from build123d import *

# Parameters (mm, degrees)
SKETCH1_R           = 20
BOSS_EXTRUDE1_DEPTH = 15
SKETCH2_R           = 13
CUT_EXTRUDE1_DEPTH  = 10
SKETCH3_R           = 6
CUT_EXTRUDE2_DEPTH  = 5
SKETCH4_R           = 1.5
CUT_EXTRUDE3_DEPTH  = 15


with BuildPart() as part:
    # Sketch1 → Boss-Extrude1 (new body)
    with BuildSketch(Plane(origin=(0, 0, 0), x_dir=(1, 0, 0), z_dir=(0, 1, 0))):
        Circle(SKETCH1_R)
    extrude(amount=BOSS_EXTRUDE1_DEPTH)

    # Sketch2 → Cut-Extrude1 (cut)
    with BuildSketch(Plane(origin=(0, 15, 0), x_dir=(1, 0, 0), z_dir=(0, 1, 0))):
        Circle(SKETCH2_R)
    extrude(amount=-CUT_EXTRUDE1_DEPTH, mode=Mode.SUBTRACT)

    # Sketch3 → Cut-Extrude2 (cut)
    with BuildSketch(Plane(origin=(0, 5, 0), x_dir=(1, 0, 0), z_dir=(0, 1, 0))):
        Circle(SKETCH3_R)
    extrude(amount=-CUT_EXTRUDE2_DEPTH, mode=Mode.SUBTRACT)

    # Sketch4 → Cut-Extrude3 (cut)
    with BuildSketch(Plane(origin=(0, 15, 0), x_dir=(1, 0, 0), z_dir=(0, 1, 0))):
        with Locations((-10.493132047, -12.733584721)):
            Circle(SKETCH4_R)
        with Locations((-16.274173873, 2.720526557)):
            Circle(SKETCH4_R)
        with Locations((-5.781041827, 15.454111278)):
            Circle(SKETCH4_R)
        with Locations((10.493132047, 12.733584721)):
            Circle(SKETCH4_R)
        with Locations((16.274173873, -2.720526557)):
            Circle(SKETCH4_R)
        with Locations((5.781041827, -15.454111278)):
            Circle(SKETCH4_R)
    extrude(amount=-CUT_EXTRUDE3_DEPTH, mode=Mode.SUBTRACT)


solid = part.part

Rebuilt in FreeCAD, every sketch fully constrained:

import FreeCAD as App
import Part
import Sketcher

V = App.Vector

doc = App.newDocument("Part")
body = doc.addObject("PartDesign::Body", "Body")

# Sketch on XZ plane
sketch1 = body.newObject("Sketcher::SketchObject", "Sketch")
sketch1.AttachmentSupport = (doc.getObject("XZ_Plane"), [""])
sketch1.MapMode = "FlatFace"
sketch1.addGeometry(Part.Circle(V(0, 0, 0), V(0, 0, 1), 20), False)
sketch1.addConstraint([
    Sketcher.Constraint("Coincident", 0, 3, -1, 1),
    Sketcher.Constraint("Diameter", 0, 40.0),
])
pad1 = body.newObject("PartDesign::Pad", "Pad")
pad1.Profile = sketch1
pad1.Length = 15
pad1.Reversed = True

# Sketch on XZ plane
sketch2 = body.newObject("Sketcher::SketchObject", "Sketch001")
sketch2.AttachmentSupport = (doc.getObject("XZ_Plane"), [""])
sketch2.MapMode = "FlatFace"
sketch2.AttachmentOffset = App.Placement(V(0, 0, -15), App.Rotation())
sketch2.addGeometry(Part.Circle(V(0, 0, 0), V(0, 0, 1), 13), False)
sketch2.addConstraint([
    Sketcher.Constraint("Coincident", 0, 3, -1, 1),
    Sketcher.Constraint("Diameter", 0, 26.0),
])
pocket1 = body.newObject("PartDesign::Pocket", "Pocket")
pocket1.Profile = sketch2
pocket1.Length = 10
pocket1.Reversed = True

# Sketch on XZ plane
sketch3 = body.newObject("Sketcher::SketchObject", "Sketch002")
sketch3.AttachmentSupport = (doc.getObject("XZ_Plane"), [""])
sketch3.MapMode = "FlatFace"
sketch3.AttachmentOffset = App.Placement(V(0, 0, -5), App.Rotation())
sketch3.addGeometry(Part.Circle(V(0, 0, 0), V(0, 0, 1), 6), False)
sketch3.addConstraint([
    Sketcher.Constraint("Coincident", 0, 3, -1, 1),
    Sketcher.Constraint("Diameter", 0, 12.0),
])
pocket2 = body.newObject("PartDesign::Pocket", "Pocket001")
pocket2.Profile = sketch3
pocket2.Length = 5
pocket2.Reversed = True

# Sketch on XZ plane
sketch4 = body.newObject("Sketcher::SketchObject", "Sketch003")
sketch4.AttachmentSupport = (doc.getObject("XZ_Plane"), [""])
sketch4.MapMode = "FlatFace"
sketch4.AttachmentOffset = App.Placement(V(0, 0, -15), App.Rotation())
sketch4.addGeometry([
    Part.Circle(V(-10.5, 12.7, 0), V(0, 0, 1), 1.5),  # 0
    Part.Circle(V(-16.3, -2.7, 0), V(0, 0, 1), 1.5),  # 1
    Part.Circle(V(-5.8, -15.5, 0), V(0, 0, 1), 1.5),  # 2
    Part.Circle(V(10.5, -12.7, 0), V(0, 0, 1), 1.5),  # 3
    Part.Circle(V(16.3, 2.7, 0), V(0, 0, 1), 1.5),  # 4
    Part.Circle(V(5.8, 15.5, 0), V(0, 0, 1), 1.5),  # 5
], False)
sketch4.addConstraint([
    Sketcher.Constraint("Equal", 0, 1),
    Sketcher.Constraint("Equal", 1, 2),
    Sketcher.Constraint("Equal", 2, 3),
    Sketcher.Constraint("Equal", 3, 4),
    Sketcher.Constraint("Equal", 4, 5),
    Sketcher.Constraint("Symmetric", 0, 3, 3, 3, -1, 1),
    Sketcher.Constraint("Symmetric", 1, 3, 4, 3, -1, 1),
    Sketcher.Constraint("Symmetric", 2, 3, 5, 3, -1, 1),
    Sketcher.Constraint("Diameter", 0, 3.0),
    Sketcher.Constraint("DistanceX", 2, 3, -1, 1, 5.781042),
    Sketcher.Constraint("DistanceY", 2, 3, -1, 1, 15.454111),
    Sketcher.Constraint("DistanceX", 1, 3, 0, 3, 5.781042),
    Sketcher.Constraint("DistanceY", 1, 3, 0, 3, 15.454111),
    Sketcher.Constraint("DistanceX", 0, 3, 2, 3, 4.71209),
    Sketcher.Constraint("DistanceY", 3, 3, 1, 3, 10.013058),
])
pocket3 = body.newObject("PartDesign::Pocket", "Pocket002")
pocket3.Profile = sketch4
pocket3.Length = 15
pocket3.Reversed = True

doc.recompute()
